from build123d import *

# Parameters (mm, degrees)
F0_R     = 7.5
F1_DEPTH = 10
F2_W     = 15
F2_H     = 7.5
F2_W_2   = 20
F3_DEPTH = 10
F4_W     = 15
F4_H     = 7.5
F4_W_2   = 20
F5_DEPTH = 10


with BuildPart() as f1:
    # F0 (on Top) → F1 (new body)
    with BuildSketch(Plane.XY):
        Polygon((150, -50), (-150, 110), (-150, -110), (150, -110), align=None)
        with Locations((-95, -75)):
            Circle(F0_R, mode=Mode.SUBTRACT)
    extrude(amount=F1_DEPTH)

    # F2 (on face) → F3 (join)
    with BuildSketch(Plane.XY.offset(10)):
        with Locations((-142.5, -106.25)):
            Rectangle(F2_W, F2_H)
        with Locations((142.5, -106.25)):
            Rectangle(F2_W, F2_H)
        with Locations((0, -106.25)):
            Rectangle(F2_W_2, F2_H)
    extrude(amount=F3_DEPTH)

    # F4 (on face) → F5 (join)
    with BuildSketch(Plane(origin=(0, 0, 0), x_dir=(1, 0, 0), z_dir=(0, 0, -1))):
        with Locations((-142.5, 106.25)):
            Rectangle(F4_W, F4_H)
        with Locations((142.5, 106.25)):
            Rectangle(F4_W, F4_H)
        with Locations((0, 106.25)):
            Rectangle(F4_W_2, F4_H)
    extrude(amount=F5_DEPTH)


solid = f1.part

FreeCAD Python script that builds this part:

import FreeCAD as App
import Part
import Sketcher
from FreeCAD import Vector


def add_polygon(sketch, points):
    """Adds a closed chain of lines whose ends are joined by coincident constraints."""
    first, n = sketch.GeometryCount, len(points)
    for a, b in zip(points, points[1:] + points[:1]):
        sketch.addGeometry(Part.LineSegment(App.Vector(*a, 0), App.Vector(*b, 0)), False)
    for i in range(n):
        sketch.addConstraint(Sketcher.Constraint("Coincident", first + i, 2, first + (i + 1) % n, 1))

doc = App.newDocument("Part")
body = doc.addObject("PartDesign::Body", "Body")

sketch1 = doc.addObject("Sketcher::SketchObject", "Sketch")
body.addObject(sketch1)
sketch1.AttachmentSupport = (doc.XY_Plane, [""])
sketch1.MapMode = "FlatFace"
add_polygon(sketch1, [(150, -50), (-150, 110), (-150, -110), (150, -110)])
sketch1.addGeometry(Part.Circle(Vector(-95, -75, 0), Vector(0, 0, 1), 8), False)
sketch1.addConstraint(Sketcher.Constraint("Vertical", 1))
sketch1.addConstraint(Sketcher.Constraint("Horizontal", 2))
sketch1.addConstraint(Sketcher.Constraint("Vertical", 3))
sketch1.addConstraint(Sketcher.Constraint("Symmetric", 0, 2, 2, 2, -1, 1))
sketch1.addConstraint(Sketcher.Constraint("Diameter", 4, 15.0))
sketch1.addConstraint(Sketcher.Constraint("DistanceX", 2, 1, 2, 2, 300.0))
sketch1.addConstraint(Sketcher.Constraint("DistanceY", 1, 2, 1, 1, 220.0))
sketch1.addConstraint(Sketcher.Constraint("DistanceY", 3, 1, 3, 2, 60.0))
sketch1.addConstraint(Sketcher.Constraint("DistanceX", 4, 3, -1, 1, 95.0))
sketch1.addConstraint(Sketcher.Constraint("DistanceY", 4, 3, -1, 1, 75.0))
pad1 = doc.addObject("PartDesign::Pad", "Pad")
body.addObject(pad1)
pad1.Profile = sketch1
pad1.Length = 10

sketch2 = doc.addObject("Sketcher::SketchObject", "Sketch001")
body.addObject(sketch2)
sketch2.AttachmentSupport = (doc.XY_Plane, [""])
sketch2.MapMode = "FlatFace"
sketch2.AttachmentOffset = App.Placement(Vector(0, 0, 10), App.Rotation())
add_polygon(sketch2, [(-150, -102), (-150, -110), (-135, -110), (-135, -102)])
add_polygon(sketch2, [(135, -102), (135, -110), (150, -110), (150, -102)])
add_polygon(sketch2, [(-10, -102), (-10, -110), (10, -110), (10, -102)])
sketch2.addConstraint(Sketcher.Constraint("Vertical", 0))
sketch2.addConstraint(Sketcher.Constraint("Horizontal", 1))
sketch2.addConstraint(Sketcher.Constraint("Vertical", 2))
sketch2.addConstraint(Sketcher.Constraint("Horizontal", 3))
sketch2.addConstraint(Sketcher.Constraint("Vertical", 4))
sketch2.addConstraint(Sketcher.Constraint("Horizontal", 5))
sketch2.addConstraint(Sketcher.Constraint("Vertical", 6))
sketch2.addConstraint(Sketcher.Constraint("Horizontal", 7))
sketch2.addConstraint(Sketcher.Constraint("Vertical", 8))
sketch2.addConstraint(Sketcher.Constraint("Horizontal", 9))
sketch2.addConstraint(Sketcher.Constraint("Vertical", 10))
sketch2.addConstraint(Sketcher.Constraint("Horizontal", 11))
sketch2.addConstraint(Sketcher.Constraint("Symmetric", 1, 2, 4, 2, -2))
sketch2.addConstraint(Sketcher.Constraint("Symmetric", 3, 2, 6, 2, -2))
sketch2.addConstraint(Sketcher.Constraint("Horizontal", 5, 2, 8, 2))
sketch2.addConstraint(Sketcher.Constraint("Horizontal", 7, 2, 10, 2))
sketch2.addConstraint(Sketcher.Constraint("DistanceX", 1, 1, 1, 2, 15.0))
sketch2.addConstraint(Sketcher.Constraint("DistanceX", 9, 1, 9, 2, 20.0))
sketch2.addConstraint(Sketcher.Constraint("DistanceY", 0, 2, 0, 1, 7.5))
sketch2.addConstraint(Sketcher.Constraint("DistanceX", 0, 2, -1, 1, 150.0))
sketch2.addConstraint(Sketcher.Constraint("DistanceY", 0, 2, -1, 1, 110.0))
sketch2.addConstraint(Sketcher.Constraint("DistanceX", 8, 2, -1, 1, 10.0))
pad2 = doc.addObject("PartDesign::Pad", "Pad001")
body.addObject(pad2)
pad2.Profile = sketch2
pad2.Length = 10

sketch3 = doc.addObject("Sketcher::SketchObject", "Sketch002")
body.addObject(sketch3)
sketch3.AttachmentSupport = (doc.XY_Plane, [""])
sketch3.MapMode = "FlatFace"
add_polygon(sketch3, [(-150, -110), (-150, -102), (-135, -102), (-135, -110)])
add_polygon(sketch3, [(135, -110), (135, -102), (150, -102), (150, -110)])
add_polygon(sketch3, [(-10, -110), (-10, -102), (10, -102), (10, -110)])
sketch3.addConstraint(Sketcher.Constraint("Vertical", 0))
sketch3.addConstraint(Sketcher.Constraint("Horizontal", 1))
sketch3.addConstraint(Sketcher.Constraint("Vertical", 2))
sketch3.addConstraint(Sketcher.Constraint("Horizontal", 3))
sketch3.addConstraint(Sketcher.Constraint("Vertical", 4))
sketch3.addConstraint(Sketcher.Constraint("Horizontal", 5))
sketch3.addConstraint(Sketcher.Constraint("Vertical", 6))
sketch3.addConstraint(Sketcher.Constraint("Horizontal", 7))
sketch3.addConstraint(Sketcher.Constraint("Vertical", 8))
sketch3.addConstraint(Sketcher.Constraint("Horizontal", 9))
sketch3.addConstraint(Sketcher.Constraint("Vertical", 10))
sketch3.addConstraint(Sketcher.Constraint("Horizontal", 11))
sketch3.addConstraint(Sketcher.Constraint("Symmetric", 1, 2, 4, 2, -2))
sketch3.addConstraint(Sketcher.Constraint("Symmetric", 3, 2, 6, 2, -2))
sketch3.addConstraint(Sketcher.Constraint("Horizontal", 5, 2, 8, 2))
sketch3.addConstraint(Sketcher.Constraint("Horizontal", 7, 2, 10, 2))
sketch3.addConstraint(Sketcher.Constraint("DistanceX", 1, 1, 1, 2, 15.0))
sketch3.addConstraint(Sketcher.Constraint("DistanceX", 9, 1, 9, 2, 20.0))
sketch3.addConstraint(Sketcher.Constraint("DistanceY", 0, 1, 0, 2, 7.5))
sketch3.addConstraint(Sketcher.Constraint("DistanceX", 0, 2, -1, 1, 150.0))
sketch3.addConstraint(Sketcher.Constraint("DistanceY", 2, 2, -1, 1, 110.0))
sketch3.addConstraint(Sketcher.Constraint("DistanceX", 8, 2, -1, 1, 10.0))
pad3 = doc.addObject("PartDesign::Pad", "Pad002")
body.addObject(pad3)
pad3.Profile = sketch3
pad3.Length = 10
pad3.Reversed = True

doc.recompute()
